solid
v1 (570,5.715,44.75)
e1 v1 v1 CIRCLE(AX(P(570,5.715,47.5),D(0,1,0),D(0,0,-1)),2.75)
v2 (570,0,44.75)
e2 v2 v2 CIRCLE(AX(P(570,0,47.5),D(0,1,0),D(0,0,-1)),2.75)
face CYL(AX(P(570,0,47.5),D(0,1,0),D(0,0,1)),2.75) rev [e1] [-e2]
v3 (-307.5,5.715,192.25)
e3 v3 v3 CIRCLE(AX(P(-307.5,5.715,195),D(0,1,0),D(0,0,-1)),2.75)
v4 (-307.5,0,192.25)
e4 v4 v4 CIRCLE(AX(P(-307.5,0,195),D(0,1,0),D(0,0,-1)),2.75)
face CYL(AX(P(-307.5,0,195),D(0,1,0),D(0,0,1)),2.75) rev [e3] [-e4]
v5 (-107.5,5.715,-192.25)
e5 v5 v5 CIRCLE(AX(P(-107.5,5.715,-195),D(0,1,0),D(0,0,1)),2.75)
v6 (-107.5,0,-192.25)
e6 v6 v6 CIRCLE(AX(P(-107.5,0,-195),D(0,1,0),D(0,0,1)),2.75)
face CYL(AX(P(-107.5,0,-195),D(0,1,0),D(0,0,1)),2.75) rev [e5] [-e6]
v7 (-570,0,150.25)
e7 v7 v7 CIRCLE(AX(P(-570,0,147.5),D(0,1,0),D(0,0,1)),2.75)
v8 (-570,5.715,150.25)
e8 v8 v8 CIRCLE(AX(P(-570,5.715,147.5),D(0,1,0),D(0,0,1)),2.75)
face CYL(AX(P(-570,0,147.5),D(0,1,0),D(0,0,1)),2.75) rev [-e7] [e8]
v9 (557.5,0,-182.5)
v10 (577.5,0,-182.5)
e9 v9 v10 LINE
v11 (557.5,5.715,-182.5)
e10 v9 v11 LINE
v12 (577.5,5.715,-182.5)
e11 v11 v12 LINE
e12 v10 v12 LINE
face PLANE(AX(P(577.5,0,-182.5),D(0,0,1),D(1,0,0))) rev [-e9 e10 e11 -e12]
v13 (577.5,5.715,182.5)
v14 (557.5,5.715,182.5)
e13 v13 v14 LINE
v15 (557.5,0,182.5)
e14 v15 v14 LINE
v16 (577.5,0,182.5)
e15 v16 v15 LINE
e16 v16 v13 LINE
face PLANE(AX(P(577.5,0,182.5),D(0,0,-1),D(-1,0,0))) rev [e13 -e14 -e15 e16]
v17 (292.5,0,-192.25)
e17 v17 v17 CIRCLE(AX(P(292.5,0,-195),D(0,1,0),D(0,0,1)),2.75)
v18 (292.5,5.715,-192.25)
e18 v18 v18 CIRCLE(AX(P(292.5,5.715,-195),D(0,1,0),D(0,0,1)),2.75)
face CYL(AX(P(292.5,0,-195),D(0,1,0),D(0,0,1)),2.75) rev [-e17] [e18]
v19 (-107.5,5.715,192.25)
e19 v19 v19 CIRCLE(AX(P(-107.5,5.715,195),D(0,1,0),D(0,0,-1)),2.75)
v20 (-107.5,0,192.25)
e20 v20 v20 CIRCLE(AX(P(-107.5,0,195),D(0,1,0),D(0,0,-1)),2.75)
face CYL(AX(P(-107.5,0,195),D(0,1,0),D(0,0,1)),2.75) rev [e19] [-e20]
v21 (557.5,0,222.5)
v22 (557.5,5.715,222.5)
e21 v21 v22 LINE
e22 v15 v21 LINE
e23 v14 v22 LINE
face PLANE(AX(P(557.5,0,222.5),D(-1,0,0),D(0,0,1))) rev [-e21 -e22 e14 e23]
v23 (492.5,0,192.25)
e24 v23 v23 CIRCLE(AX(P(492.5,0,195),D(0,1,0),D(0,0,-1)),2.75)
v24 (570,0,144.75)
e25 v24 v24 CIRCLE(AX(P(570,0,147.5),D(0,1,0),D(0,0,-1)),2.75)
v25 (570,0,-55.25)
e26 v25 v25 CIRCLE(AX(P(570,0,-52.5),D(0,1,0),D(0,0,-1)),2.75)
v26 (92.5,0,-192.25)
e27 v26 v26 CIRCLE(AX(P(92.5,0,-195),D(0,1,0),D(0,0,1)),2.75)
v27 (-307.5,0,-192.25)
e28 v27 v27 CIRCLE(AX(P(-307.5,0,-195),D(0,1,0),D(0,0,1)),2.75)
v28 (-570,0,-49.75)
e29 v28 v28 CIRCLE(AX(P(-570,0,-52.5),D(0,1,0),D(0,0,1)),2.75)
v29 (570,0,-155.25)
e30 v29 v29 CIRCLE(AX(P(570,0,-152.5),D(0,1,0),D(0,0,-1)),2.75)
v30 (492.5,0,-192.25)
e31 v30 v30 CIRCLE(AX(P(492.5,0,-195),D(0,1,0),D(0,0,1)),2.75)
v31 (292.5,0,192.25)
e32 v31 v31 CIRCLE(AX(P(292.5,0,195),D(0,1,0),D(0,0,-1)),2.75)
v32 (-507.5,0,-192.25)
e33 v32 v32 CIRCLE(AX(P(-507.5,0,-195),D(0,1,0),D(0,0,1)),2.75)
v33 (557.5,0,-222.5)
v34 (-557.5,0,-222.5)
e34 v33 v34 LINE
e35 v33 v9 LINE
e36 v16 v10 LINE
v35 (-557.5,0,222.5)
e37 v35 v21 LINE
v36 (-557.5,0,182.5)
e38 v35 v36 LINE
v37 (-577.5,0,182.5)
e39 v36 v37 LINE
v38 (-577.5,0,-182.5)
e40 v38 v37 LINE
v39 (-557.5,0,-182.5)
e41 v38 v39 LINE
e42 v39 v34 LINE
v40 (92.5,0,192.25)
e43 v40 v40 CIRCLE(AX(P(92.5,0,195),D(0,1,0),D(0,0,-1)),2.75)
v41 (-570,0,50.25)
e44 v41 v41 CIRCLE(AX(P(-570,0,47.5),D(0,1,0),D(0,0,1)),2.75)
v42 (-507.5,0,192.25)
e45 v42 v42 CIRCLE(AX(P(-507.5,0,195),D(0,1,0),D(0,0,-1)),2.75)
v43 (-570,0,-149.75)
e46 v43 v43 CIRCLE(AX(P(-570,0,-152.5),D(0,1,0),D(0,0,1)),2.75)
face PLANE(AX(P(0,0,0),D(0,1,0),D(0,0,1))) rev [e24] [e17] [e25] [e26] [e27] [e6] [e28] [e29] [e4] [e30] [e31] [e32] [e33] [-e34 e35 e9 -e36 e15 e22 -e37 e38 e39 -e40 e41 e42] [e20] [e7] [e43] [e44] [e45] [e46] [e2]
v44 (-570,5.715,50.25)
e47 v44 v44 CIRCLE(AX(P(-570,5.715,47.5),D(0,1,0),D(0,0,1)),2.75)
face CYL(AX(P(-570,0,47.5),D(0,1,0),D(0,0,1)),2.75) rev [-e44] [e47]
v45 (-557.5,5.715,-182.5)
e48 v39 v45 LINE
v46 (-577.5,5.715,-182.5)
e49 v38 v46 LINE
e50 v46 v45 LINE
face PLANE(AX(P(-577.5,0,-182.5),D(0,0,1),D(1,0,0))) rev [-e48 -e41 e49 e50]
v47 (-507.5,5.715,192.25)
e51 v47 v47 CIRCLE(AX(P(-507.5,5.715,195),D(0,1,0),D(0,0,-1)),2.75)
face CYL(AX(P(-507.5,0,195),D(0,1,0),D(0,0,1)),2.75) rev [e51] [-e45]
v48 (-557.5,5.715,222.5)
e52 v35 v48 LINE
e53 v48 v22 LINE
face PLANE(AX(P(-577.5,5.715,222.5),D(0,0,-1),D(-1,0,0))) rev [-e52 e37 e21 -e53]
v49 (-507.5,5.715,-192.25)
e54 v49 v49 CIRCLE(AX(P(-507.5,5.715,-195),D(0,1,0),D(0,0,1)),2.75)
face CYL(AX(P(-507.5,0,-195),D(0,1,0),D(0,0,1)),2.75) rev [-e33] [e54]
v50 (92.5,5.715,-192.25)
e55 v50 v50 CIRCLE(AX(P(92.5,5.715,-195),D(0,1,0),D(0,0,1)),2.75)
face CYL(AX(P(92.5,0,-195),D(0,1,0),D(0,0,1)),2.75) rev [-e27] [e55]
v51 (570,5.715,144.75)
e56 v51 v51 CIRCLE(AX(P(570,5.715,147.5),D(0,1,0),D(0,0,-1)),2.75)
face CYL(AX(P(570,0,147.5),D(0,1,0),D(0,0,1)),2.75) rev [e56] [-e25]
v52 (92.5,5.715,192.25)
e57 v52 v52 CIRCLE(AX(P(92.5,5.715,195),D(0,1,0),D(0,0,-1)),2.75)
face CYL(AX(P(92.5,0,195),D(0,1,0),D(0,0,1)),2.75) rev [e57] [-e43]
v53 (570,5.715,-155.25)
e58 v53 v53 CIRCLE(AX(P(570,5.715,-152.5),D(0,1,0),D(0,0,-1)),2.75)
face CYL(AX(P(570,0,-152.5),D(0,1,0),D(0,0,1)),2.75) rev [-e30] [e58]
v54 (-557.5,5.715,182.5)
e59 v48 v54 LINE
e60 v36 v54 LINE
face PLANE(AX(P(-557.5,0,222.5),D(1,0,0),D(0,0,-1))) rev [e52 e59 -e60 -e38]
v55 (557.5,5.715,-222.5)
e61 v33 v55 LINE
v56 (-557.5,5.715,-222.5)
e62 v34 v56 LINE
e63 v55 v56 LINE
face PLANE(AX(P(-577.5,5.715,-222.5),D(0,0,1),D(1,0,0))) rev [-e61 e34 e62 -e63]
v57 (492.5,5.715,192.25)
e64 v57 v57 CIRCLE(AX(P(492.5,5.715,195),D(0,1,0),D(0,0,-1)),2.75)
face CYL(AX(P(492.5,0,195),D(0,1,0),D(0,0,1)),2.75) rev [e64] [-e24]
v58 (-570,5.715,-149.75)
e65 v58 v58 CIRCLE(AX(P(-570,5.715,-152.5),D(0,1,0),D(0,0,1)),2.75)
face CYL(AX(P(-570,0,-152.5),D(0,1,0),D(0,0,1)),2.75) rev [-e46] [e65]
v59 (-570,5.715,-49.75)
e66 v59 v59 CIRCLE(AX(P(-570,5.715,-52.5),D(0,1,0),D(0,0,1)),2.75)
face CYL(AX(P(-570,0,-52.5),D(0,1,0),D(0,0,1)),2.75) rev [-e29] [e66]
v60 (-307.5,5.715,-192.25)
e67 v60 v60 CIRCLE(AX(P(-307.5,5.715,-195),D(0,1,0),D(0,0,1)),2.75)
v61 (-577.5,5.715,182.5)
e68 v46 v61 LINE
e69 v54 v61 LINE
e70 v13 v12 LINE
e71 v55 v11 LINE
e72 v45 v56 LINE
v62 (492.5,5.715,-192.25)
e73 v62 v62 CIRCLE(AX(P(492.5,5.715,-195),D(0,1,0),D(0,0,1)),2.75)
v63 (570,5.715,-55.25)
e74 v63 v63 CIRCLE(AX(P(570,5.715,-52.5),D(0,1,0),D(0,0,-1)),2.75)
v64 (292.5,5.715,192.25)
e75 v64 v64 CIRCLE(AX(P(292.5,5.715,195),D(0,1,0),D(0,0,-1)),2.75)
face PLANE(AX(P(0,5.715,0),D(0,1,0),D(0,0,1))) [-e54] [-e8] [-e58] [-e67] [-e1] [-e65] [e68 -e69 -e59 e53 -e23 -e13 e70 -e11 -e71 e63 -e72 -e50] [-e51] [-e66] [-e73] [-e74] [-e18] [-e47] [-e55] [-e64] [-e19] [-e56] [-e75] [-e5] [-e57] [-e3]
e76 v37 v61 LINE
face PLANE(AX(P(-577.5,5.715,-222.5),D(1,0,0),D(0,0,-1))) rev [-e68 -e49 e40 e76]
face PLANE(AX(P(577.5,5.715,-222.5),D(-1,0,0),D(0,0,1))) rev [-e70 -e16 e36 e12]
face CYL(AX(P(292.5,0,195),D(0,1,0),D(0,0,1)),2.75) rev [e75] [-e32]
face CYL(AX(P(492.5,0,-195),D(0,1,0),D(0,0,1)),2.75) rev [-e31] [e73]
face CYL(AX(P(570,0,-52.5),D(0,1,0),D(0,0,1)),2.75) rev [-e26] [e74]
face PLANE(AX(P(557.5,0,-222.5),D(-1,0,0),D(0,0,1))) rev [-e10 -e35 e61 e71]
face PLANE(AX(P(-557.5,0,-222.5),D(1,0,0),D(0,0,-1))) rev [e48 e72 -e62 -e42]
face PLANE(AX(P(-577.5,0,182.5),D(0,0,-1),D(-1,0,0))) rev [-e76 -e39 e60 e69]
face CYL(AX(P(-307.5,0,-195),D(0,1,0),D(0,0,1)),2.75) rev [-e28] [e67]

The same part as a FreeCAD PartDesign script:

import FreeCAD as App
import Part
import Sketcher
from FreeCAD import Vector


def add_polygon(sketch, points):
    """Adds a closed chain of lines whose ends are joined by coincident constraints."""
    first, n = sketch.GeometryCount, len(points)
    for a, b in zip(points, points[1:] + points[:1]):
        sketch.addGeometry(Part.LineSegment(App.Vector(*a, 0), App.Vector(*b, 0)), False)
    for i in range(n):
        sketch.addConstraint(Sketcher.Constraint("Coincident", first + i, 2, first + (i + 1) % n, 1))

doc = App.newDocument("Part")
body = doc.addObject("PartDesign::Body", "Body")

# Sketch on XZ plane
sketch1 = body.newObject("Sketcher::SketchObject", "Sketch")
sketch1.AttachmentSupport = (doc.getObject("XZ_Plane"), [""])
sketch1.MapMode = "FlatFace"
add_polygon(sketch1, [(-577.5, -222.5), (-577.5, 222.5), (577.5, 222.5), (577.5, -222.5)])  # lines 0-3
sketch1.addConstraint([
    Sketcher.Constraint("Vertical", 0),
    Sketcher.Constraint("Horizontal", 1),
    Sketcher.Constraint("Vertical", 2),
    Sketcher.Constraint("Horizontal", 3),
    Sketcher.Constraint("Symmetric", 0, 2, 2, 2, -1, 1),
    Sketcher.Constraint("DistanceX", 1, 1, 1, 2, 1155.0),
    Sketcher.Constraint("DistanceY", 0, 1, 0, 2, 445.0),
])
pad1 = body.newObject("PartDesign::Pad", "Pad")
pad1.Profile = sketch1
pad1.Length = 5.715
pad1.Reversed = True

# Sketch on XZ plane
sketch2 = body.newObject("Sketcher::SketchObject", "Sketch001")
sketch2.AttachmentSupport = (doc.getObject("XZ_Plane"), [""])
sketch2.MapMode = "FlatFace"
sketch2.AttachmentOffset = App.Placement(Vector(0, 0, -5.715), App.Rotation())
add_polygon(sketch2, [(-577.5, -222.5), (-577.5, -182.5), (-557.5, -182.5), (-557.5, -222.5)])  # lines 0-3
add_polygon(sketch2, [(-577.5, 182.5), (-577.5, 222.5), (-557.5, 222.5), (-557.5, 182.5)])  # lines 4-7
add_polygon(sketch2, [(557.5, 182.5), (557.5, 222.5), (577.5, 222.5), (577.5, 182.5)])  # lines 8-11
add_polygon(sketch2, [(557.5, -222.5), (557.5, -182.5), (577.5, -182.5), (577.5, -222.5)])  # lines 12-15
sketch2.addConstraint([
    Sketcher.Constraint("Vertical", 0),
    Sketcher.Constraint("Horizontal", 1),
    Sketcher.Constraint("Vertical", 2),
    Sketcher.Constraint("Horizontal", 3),
    Sketcher.Constraint("Vertical", 4),
    Sketcher.Constraint("Horizontal", 5),
    Sketcher.Constraint("Vertical", 6),
    Sketcher.Constraint("Horizontal", 7),
    Sketcher.Constraint("Vertical", 8),
    Sketcher.Constraint("Horizontal", 9),
    Sketcher.Constraint("Vertical", 10),
    Sketcher.Constraint("Horizontal", 11),
    Sketcher.Constraint("Vertical", 12),
    Sketcher.Constraint("Horizontal", 13),
    Sketcher.Constraint("Vertical", 14),
    Sketcher.Constraint("Horizontal", 15),
    Sketcher.Constraint("Symmetric", 2, 2, 8, 2, -1, 1),
    Sketcher.Constraint("Symmetric", 0, 2, 10, 2, -1, 1),
    Sketcher.Constraint("Symmetric", 6, 2, 12, 2, -1, 1),
    Sketcher.Constraint("Symmetric", 4, 2, 14, 2, -1, 1),
    Sketcher.Constraint("Symmetric", 5, 2, 8, 2, -2),
    Sketcher.Constraint("Symmetric", 7, 2, 10, 2, -2),
    Sketcher.Constraint("DistanceX", 1, 1, 1, 2, 20.0),
    Sketcher.Constraint("DistanceY", 0, 1, 0, 2, 40.0),
    Sketcher.Constraint("DistanceY", 0, 2, 4, 2, 405.0),
    Sketcher.Constraint("DistanceX", 5, 2, 8, 2, 1115.0),
])
pocket1 = body.newObject("PartDesign::Pocket", "Pocket")
pocket1.Profile = sketch2
pocket1.Type = "ThroughAll"
pocket1.Reversed = True

# Sketch on XZ plane
sketch3 = body.newObject("Sketcher::SketchObject", "Sketch002")
sketch3.AttachmentSupport = (doc.getObject("XZ_Plane"), [""])
sketch3.MapMode = "FlatFace"
sketch3.AttachmentOffset = App.Placement(Vector(0, 0, -5.715), App.Rotation())
sketch3.addGeometry([
    Part.Circle(Vector(-507.5, -195, 0), Vector(0, 0, 1), 2.75),  # 0
    Part.Circle(Vector(-570, -152.5, 0), Vector(0, 0, 1), 2.75),  # 1
    Part.Circle(Vector(-307.5, -195, 0), Vector(0, 0, 1), 2.75),  # 2
    Part.Circle(Vector(-107.5, -195, 0), Vector(0, 0, 1), 2.75),  # 3
    Part.Circle(Vector(92.5, -195, 0), Vector(0, 0, 1), 2.75),  # 4
    Part.Circle(Vector(292.5, -195, 0), Vector(0, 0, 1), 2.75),  # 5
    Part.Circle(Vector(492.5, -195, 0), Vector(0, 0, 1), 2.75),  # 6
    Part.Circle(Vector(-570, -52.5, 0), Vector(0, 0, 1), 2.75),  # 7
    Part.Circle(Vector(-570, 47.5, 0), Vector(0, 0, 1), 2.75),  # 8
    Part.Circle(Vector(-570, 147.5, 0), Vector(0, 0, 1), 2.75),  # 9
    Part.Circle(Vector(492.5, 195, 0), Vector(0, 0, 1), 2.75),  # 10
    Part.Circle(Vector(292.5, 195, 0), Vector(0, 0, 1), 2.75),  # 11
    Part.Circle(Vector(92.5, 195, 0), Vector(0, 0, 1), 2.75),  # 12
    Part.Circle(Vector(-107.5, 195, 0), Vector(0, 0, 1), 2.75),  # 13
    Part.Circle(Vector(-307.5, 195, 0), Vector(0, 0, 1), 2.75),  # 14
    Part.Circle(Vector(-507.5, 195, 0), Vector(0, 0, 1), 2.75),  # 15
    Part.Circle(Vector(570, 147.5, 0), Vector(0, 0, 1), 2.75),  # 16
    Part.Circle(Vector(570, 47.5, 0), Vector(0, 0, 1), 2.75),  # 17
    Part.Circle(Vector(570, -52.5, 0), Vector(0, 0, 1), 2.75),  # 18
    Part.Circle(Vector(570, -152.5, 0), Vector(0, 0, 1), 2.75),  # 19
], False)
sketch3.addConstraint([
    Sketcher.Constraint("Equal", 0, 1),
    Sketcher.Constraint("Equal", 1, 2),
    Sketcher.Constraint("Equal", 2, 3),
    Sketcher.Constraint("Equal", 3, 4),
    Sketcher.Constraint("Equal", 4, 5),
    Sketcher.Constraint("Equal", 5, 6),
    Sketcher.Constraint("Equal", 6, 7),
    Sketcher.Constraint("Equal", 7, 8),
    Sketcher.Constraint("Equal", 8, 9),
    Sketcher.Constraint("Equal", 9, 10),
    Sketcher.Constraint("Equal", 10, 11),
    Sketcher.Constraint("Equal", 11, 12),
    Sketcher.Constraint("Equal", 12, 13),
    Sketcher.Constraint("Equal", 13, 14),
    Sketcher.Constraint("Equal", 14, 15),
    Sketcher.Constraint("Equal", 15, 16),
    Sketcher.Constraint("Equal", 16, 17),
    Sketcher.Constraint("Equal", 17, 18),
    Sketcher.Constraint("Equal", 18, 19),
    Sketcher.Constraint("Symmetric", 9, 3, 16, 3, -2),
    Sketcher.Constraint("Symmetric", 8, 3, 17, 3, -2),
    Sketcher.Constraint("Symmetric", 7, 3, 18, 3, -2),
    Sketcher.Constraint("Symmetric", 1, 3, 19, 3, -2),
    Sketcher.Constraint("Symmetric", 6, 3, 10, 3, -1),
    Sketcher.Constraint("Symmetric", 5, 3, 11, 3, -1),
    Sketcher.Constraint("Symmetric", 4, 3, 12, 3, -1),
    Sketcher.Constraint("Symmetric", 3, 3, 13, 3, -1),
    Sketcher.Constraint("Symmetric", 2, 3, 14, 3, -1),
    Sketcher.Constraint("Symmetric", 0, 3, 15, 3, -1),
    Sketcher.Constraint("Horizontal", 0, 3, 2, 3),
    Sketcher.Constraint("Horizontal", 2, 3, 3, 3),
    Sketcher.Constraint("Horizontal", 3, 3, 4, 3),
    Sketcher.Constraint("Horizontal", 4, 3, 5, 3),
    Sketcher.Constraint("Horizontal", 5, 3, 6, 3),
    Sketcher.Constraint("Vertical", 1, 3, 7, 3),
    Sketcher.Constraint("Vertical", 7, 3, 8, 3),
    Sketcher.Constraint("Vertical", 8, 3, 9, 3),
    Sketcher.Constraint("Diameter", 0, 5.5),
    Sketcher.Constraint("DistanceY", 0, 3, -1, 1, 195.0),
    Sketcher.Constraint("DistanceX", 1, 3, -1, 1, 570.0),
    Sketcher.Constraint("DistanceX", 0, 3, 2, 3, 200.0),
    Sketcher.Constraint("DistanceX", 2, 3, 3, 3, 200.0),
    Sketcher.Constraint("DistanceX", 3, 3, 4, 3, 200.0),
    Sketcher.Constraint("DistanceX", 4, 3, 5, 3, 200.0),
    Sketcher.Constraint("DistanceX", 5, 3, 6, 3, 200.0),
    Sketcher.Constraint("DistanceY", 1, 3, 7, 3, 100.0),
    Sketcher.Constraint("DistanceY", 7, 3, 8, 3, 100.0),
    Sketcher.Constraint("DistanceY", 8, 3, 9, 3, 100.0),
    Sketcher.Constraint("DistanceX", 0, 3, -1, 1, 507.5),
    Sketcher.Constraint("DistanceY", 1, 3, -1, 1, 152.5),
])
pocket2 = body.newObject("PartDesign::Pocket", "Pocket001")
pocket2.Profile = sketch3
pocket2.Type = "ThroughAll"
pocket2.Reversed = True

doc.recompute()
